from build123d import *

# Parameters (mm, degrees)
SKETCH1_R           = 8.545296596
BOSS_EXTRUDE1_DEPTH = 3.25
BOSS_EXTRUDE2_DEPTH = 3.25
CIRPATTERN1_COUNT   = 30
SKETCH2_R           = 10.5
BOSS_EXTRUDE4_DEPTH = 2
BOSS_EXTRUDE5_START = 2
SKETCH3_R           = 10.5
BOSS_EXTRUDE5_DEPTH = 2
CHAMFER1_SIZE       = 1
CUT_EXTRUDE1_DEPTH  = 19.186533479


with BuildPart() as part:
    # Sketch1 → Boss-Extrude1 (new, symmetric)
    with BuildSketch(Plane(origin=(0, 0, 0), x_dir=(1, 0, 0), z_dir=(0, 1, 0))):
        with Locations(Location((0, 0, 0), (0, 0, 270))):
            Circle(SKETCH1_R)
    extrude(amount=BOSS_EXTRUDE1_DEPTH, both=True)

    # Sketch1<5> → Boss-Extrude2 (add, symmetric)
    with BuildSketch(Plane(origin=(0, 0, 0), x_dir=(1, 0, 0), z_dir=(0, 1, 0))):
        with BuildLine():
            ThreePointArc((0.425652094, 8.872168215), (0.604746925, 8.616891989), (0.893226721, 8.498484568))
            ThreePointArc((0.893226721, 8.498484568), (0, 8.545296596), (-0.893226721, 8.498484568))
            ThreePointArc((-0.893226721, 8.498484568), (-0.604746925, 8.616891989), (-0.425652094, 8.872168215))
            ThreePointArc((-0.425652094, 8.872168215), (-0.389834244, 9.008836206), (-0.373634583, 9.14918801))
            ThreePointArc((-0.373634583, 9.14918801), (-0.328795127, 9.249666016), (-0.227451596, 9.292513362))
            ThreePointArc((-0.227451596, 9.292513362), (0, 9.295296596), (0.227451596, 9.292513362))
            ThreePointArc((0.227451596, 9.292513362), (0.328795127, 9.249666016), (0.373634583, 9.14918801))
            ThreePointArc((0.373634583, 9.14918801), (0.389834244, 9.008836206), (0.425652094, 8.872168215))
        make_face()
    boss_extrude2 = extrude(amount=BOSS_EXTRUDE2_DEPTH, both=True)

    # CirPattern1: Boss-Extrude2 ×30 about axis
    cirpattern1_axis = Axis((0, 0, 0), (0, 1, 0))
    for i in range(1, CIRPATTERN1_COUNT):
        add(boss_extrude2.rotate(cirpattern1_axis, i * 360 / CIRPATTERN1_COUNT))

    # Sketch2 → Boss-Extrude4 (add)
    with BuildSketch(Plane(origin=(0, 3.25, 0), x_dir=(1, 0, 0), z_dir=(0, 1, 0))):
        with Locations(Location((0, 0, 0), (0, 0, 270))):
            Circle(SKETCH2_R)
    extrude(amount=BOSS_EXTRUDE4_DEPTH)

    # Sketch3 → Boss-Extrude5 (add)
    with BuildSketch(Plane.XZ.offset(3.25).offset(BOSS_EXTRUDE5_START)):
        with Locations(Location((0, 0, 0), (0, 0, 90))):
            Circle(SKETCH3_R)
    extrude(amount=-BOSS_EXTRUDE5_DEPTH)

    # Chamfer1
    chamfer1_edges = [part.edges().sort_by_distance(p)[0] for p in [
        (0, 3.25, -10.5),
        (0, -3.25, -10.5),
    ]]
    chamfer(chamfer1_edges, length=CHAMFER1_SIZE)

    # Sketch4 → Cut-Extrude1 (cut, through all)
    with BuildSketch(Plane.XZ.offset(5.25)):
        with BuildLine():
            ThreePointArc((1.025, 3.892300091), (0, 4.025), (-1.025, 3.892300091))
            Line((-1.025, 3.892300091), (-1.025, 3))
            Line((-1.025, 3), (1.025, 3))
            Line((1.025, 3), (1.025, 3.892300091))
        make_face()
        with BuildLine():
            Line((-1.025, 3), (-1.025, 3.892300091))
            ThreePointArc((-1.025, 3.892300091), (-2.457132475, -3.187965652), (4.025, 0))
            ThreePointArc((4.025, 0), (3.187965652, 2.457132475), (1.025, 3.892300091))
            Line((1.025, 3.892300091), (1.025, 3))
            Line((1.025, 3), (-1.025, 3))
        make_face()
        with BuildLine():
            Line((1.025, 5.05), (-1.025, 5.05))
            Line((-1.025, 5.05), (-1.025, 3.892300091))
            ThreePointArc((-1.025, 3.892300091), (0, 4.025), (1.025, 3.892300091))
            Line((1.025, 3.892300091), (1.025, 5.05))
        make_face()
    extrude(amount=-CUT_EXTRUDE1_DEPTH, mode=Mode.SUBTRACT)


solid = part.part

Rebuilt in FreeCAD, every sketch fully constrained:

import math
import FreeCAD as App
import Part
import Sketcher
from FreeCAD import Vector
Q = App.Units.Quantity


def edges_at(feature, points):
    """Names of the edges that pass closest to the given points."""
    edges = feature.Shape.Edges
    near = lambda p: min(range(len(edges)), key=lambda i: edges[i].distToShape(Part.Vertex(*p))[0])
    return sorted({f"Edge{near(p) + 1}" for p in points})

doc = App.newDocument("Part")
params = doc.addObject("Spreadsheet::Sheet", "Params")
for row, (alias, value) in enumerate([
    ("pad1_length", "6.5 mm"),
    ("sketch2_radius", "1 mm"),
    ("sketch2_radius2", "0.15 mm"),
    ("pad2_length", "6.5 mm"),
    ("sketch3_diameter", "21 mm"),
    ("pad3_length", "2 mm"),
    ("sketch4_diameter", "21 mm"),
    ("pad4_length", "2 mm"),
    ("chamfer_size", "1 mm"),
], start=1):
    params.set(f"A{row}", alias)
    params.set(f"B{row}", "=" + value)
    params.setAlias(f"B{row}", alias)

body = doc.addObject("PartDesign::Body", "Body")

# Sketch on XZ plane
sketch1 = body.newObject("Sketcher::SketchObject", "Sketch")
sketch1.AttachmentSupport = (doc.getObject("XZ_Plane"), [""])
sketch1.MapMode = "FlatFace"
sketch1.addGeometry(Part.Circle(Vector(0, 0, 0), Vector(0, 0, 1), 8.545297), False)
sketch1.addConstraint([
    Sketcher.Constraint("Coincident", 0, 3, -1, 1),
    Sketcher.Constraint("Diameter", 0, Q("17.090593 mm")),
])
pad1 = body.newObject("PartDesign::Pad", "Pad")
pad1.Profile = sketch1
pad1.setExpression("Length", "Params.pad1_length")
pad1.Midplane = True

# Sketch on XZ plane
sketch2 = body.newObject("Sketcher::SketchObject", "Sketch001")
sketch2.AttachmentSupport = (doc.getObject("XZ_Plane"), [""])
sketch2.MapMode = "FlatFace"
sketch2.addGeometry([
    Part.ArcOfCircle(Part.Circle(Vector(0.95124, -9.050444, 0), Vector(0, 0, 1), 0.555), math.radians(96), math.radians(161.263398)),  # 0
    Part.ArcOfCircle(Part.Circle(Vector(1.372657, -9.193386, 0), Vector(0, 0, 1), 1), math.radians(161.263398), math.radians(177.466803)),  # 1
    Part.ArcOfCircle(Part.Circle(Vector(0.223781, -9.142558, 0), Vector(0, 0, 1), 0.15), math.radians(-88.597859), math.radians(-2.533197)),  # 2
    Part.ArcOfCircle(Part.Circle(Vector(0, 0.000001, 0), Vector(0, 0, 1), 9.295297), math.radians(-91.402141), math.radians(-88.597859)),  # 3
    Part.ArcOfCircle(Part.Circle(Vector(-0.223781, -9.142558, 0), Vector(0, 0, 1), 0.15), math.radians(-177.466803), math.radians(-91.402141)),  # 4
    Part.ArcOfCircle(Part.Circle(Vector(-1.372657, -9.193386, 0), Vector(0, 0, 1), 1), math.radians(2.533197), math.radians(18.736602)),  # 5
    Part.ArcOfCircle(Part.Circle(Vector(-0.95124, -9.050444, 0), Vector(0, 0, 1), 0.555), math.radians(18.736602), math.radians(84)),  # 6
    Part.ArcOfCircle(Part.Circle(Vector(0, 0, 0), Vector(0, 0, 1), 8.545297), math.radians(-96), math.radians(-84)),  # 7
], False)
sketch2.addConstraint([
    Sketcher.Constraint("Tangent", 0, 2, 1, 1),
    Sketcher.Constraint("Tangent", 1, 2, 2, 2),
    Sketcher.Constraint("Tangent", 2, 1, 3, 2),
    Sketcher.Constraint("Tangent", 3, 1, 4, 2),
    Sketcher.Constraint("Tangent", 4, 1, 5, 1),
    Sketcher.Constraint("Tangent", 5, 2, 6, 1),
    Sketcher.Constraint("Tangent", 6, 2, 7, 1),
    Sketcher.Constraint("Tangent", 7, 2, 0, 1),
    Sketcher.Constraint("Coincident", 3, 3, -1, 1),
    Sketcher.Constraint("Coincident", 7, 3, -1, 1),
    Sketcher.Constraint("Equal", 2, 4),
    Sketcher.Constraint("Equal", 1, 5),
    Sketcher.Constraint("Equal", 0, 6),
    Sketcher.Constraint("Symmetric", 1, 3, 5, 3, -2),
    Sketcher.Constraint("Radius", 1, Q("1 mm")),
    Sketcher.Constraint("Radius", 2, Q("0.15 mm")),
    Sketcher.Constraint("Radius", 0, Q("0.555 mm")),
    Sketcher.Constraint("Radius", 3, Q("9.295297 mm")),
    Sketcher.Constraint("Radius", 7, Q("8.545297 mm")),
    Sketcher.Constraint("DistanceY", 1, 3, 1, 2, Q("0.044198 mm")),
    Sketcher.Constraint("DistanceX", 2, 1, 0, 2, Q("0.1982 mm")),
])
sketch2.setExpression("Constraints[14]", "Params.sketch2_radius")
sketch2.setExpression("Constraints[15]", "Params.sketch2_radius2")
pad2 = body.newObject("PartDesign::Pad", "Pad001")
pad2.Profile = sketch2
pad2.setExpression("Length", "Params.pad2_length")
pad2.Midplane = True
doc.recompute()

polarpattern = body.newObject("PartDesign::PolarPattern", "PolarPattern")
polarpattern.Originals = [pad2]
polarpattern.Axis = (doc.getObject("Y_Axis"), [""])
polarpattern.Angle = 360
polarpattern.Occurrences = 30
body.Tip = polarpattern

# Sketch on XZ plane
sketch3 = body.newObject("Sketcher::SketchObject", "Sketch002")
sketch3.AttachmentSupport = (doc.getObject("XZ_Plane"), [""])
sketch3.MapMode = "FlatFace"
sketch3.AttachmentOffset = App.Placement(Vector(0, 0, -3.25), App.Rotation())
sketch3.addGeometry(Part.Circle(Vector(0, 0, 0), Vector(0, 0, 1), 10.5), False)
sketch3.addConstraint([
    Sketcher.Constraint("Coincident", 0, 3, -1, 1),
    Sketcher.Constraint("Diameter", 0, Q("21 mm")),
])
sketch3.setExpression("Constraints[1]", "Params.sketch3_diameter")
pad3 = body.newObject("PartDesign::Pad", "Pad002")
pad3.Profile = sketch3
pad3.setExpression("Length", "Params.pad3_length")
pad3.Reversed = True

# Sketch on XZ plane
sketch4 = body.newObject("Sketcher::SketchObject", "Sketch003")
sketch4.AttachmentSupport = (doc.getObject("XZ_Plane"), [""])
sketch4.MapMode = "FlatFace"
sketch4.AttachmentOffset = App.Placement(Vector(0, 0, 5.25), App.Rotation())
sketch4.addGeometry(Part.Circle(Vector(0, 0, 0), Vector(0, 0, 1), 10.5), False)
sketch4.addConstraint([
    Sketcher.Constraint("Coincident", 0, 3, -1, 1),
    Sketcher.Constraint("Diameter", 0, Q("21 mm")),
])
sketch4.setExpression("Constraints[1]", "Params.sketch4_diameter")
pad4 = body.newObject("PartDesign::Pad", "Pad003")
pad4.Profile = sketch4
pad4.setExpression("Length", "Params.pad4_length")
pad4.Reversed = True
doc.recompute()

chamfer = body.newObject("PartDesign::Chamfer", "Chamfer")
chamfer.Base = (pad4, edges_at(pad4, [(0, 3.25, -10.5), (0, -3.25, -10.5)]))
chamfer.setExpression("Size", "Params.chamfer_size")

# Sketch on XZ plane
sketch5 = body.newObject("Sketcher::SketchObject", "Sketch004")
sketch5.AttachmentSupport = (doc.getObject("XZ_Plane"), [""])
sketch5.MapMode = "FlatFace"
sketch5.AttachmentOffset = App.Placement(Vector(0, 0, 5.25), App.Rotation())
sketch5.addGeometry([
    Part.ArcOfCircle(Part.Circle(Vector(0, 0, 0), Vector(0, 0, 1), 4.025), math.radians(104.753344), math.radians(360)),  # 0
    Part.ArcOfCircle(Part.Circle(Vector(0, 0, 0), Vector(0, 0, 1), 4.025), math.radians(0), math.radians(75.246656)),  # 1
    Part.LineSegment(Vector(1.025, 3.8923, 0), Vector(1.025, 5.05, 0)),  # 2
    Part.LineSegment(Vector(1.025, 5.05, 0), Vector(-1.025, 5.05, 0)),  # 3
    Part.LineSegment(Vector(-1.025, 5.05, 0), Vector(-1.025, 3.8923, 0)),  # 4
], False)
sketch5.addConstraint([
    Sketcher.Constraint("Tangent", 0, 2, 1, 1),
    Sketcher.Constraint("Coincident", 1, 2, 2, 1),
    Sketcher.Constraint("Coincident", 2, 2, 3, 1),
    Sketcher.Constraint("Coincident", 3, 2, 4, 1),
    Sketcher.Constraint("Coincident", 4, 2, 0, 1),
    Sketcher.Constraint("Vertical", 2),
    Sketcher.Constraint("Horizontal", 3),
    Sketcher.Constraint("Vertical", 4),
    Sketcher.Constraint("Coincident", 0, 3, -1, 1),
    Sketcher.Constraint("Equal", 0, 1),
    Sketcher.Constraint("PointOnObject", 0, 2, -1),
    Sketcher.Constraint("Horizontal", 1, 2, 4, 2),
    Sketcher.Constraint("Radius", 0, Q("4.025 mm")),
    Sketcher.Constraint("DistanceX", 1, 2, 0, 2, Q("3 mm")),
    Sketcher.Constraint("DistanceY", -1, 1, 2, 2, Q("5.05 mm")),
])
pocket1 = body.newObject("PartDesign::Pocket", "Pocket")
pocket1.Profile = sketch5
pocket1.Type = "ThroughAll"

doc.recompute()
